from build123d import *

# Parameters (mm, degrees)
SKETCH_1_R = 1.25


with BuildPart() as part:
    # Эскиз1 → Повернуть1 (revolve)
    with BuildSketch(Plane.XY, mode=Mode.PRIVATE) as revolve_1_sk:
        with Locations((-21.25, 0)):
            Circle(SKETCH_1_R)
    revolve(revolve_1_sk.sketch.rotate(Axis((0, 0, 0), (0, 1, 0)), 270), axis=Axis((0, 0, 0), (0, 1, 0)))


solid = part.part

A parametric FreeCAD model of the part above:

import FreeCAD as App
import Part
import Sketcher

V = App.Vector

doc = App.newDocument("Part")
params = doc.addObject("Spreadsheet::Sheet", "Params")
for row, (alias, value) in enumerate([
    ("sketch1_diameter", "2.5 mm"),
    ("revolution_angle", "360 deg"),
], start=1):
    params.set(f"A{row}", alias)
    params.set(f"B{row}", "=" + value)
    params.setAlias(f"B{row}", alias)

body = doc.addObject("PartDesign::Body", "Body")

sketch1 = body.newObject("Sketcher::SketchObject", "Sketch")
sketch1.AttachmentSupport = (doc.getObject("XY_Plane"), [""])
sketch1.MapMode = "FlatFace"
sketch1.addGeometry(Part.Circle(V(-21.25, 0, 0), V(0, 0, 1), 1.25), False)
sketch1.addConstraint(Sketcher.Constraint("PointOnObject", 0, 3, -1))
sketch1.addConstraint(Sketcher.Constraint("Diameter", 0, 2.5))
sketch1.addConstraint(Sketcher.Constraint("DistanceX", 0, 3, -1, 1, 21.25))
sketch1.setExpression("Constraints[1]", "Params.sketch1_diameter")
revolution = body.newObject("PartDesign::Revolution", "Revolution")
revolution.Profile = sketch1
revolution.ReferenceAxis = (sketch1, ["V_Axis"])
revolution.setExpression("Angle", "Params.revolution_angle")

doc.recompute()
